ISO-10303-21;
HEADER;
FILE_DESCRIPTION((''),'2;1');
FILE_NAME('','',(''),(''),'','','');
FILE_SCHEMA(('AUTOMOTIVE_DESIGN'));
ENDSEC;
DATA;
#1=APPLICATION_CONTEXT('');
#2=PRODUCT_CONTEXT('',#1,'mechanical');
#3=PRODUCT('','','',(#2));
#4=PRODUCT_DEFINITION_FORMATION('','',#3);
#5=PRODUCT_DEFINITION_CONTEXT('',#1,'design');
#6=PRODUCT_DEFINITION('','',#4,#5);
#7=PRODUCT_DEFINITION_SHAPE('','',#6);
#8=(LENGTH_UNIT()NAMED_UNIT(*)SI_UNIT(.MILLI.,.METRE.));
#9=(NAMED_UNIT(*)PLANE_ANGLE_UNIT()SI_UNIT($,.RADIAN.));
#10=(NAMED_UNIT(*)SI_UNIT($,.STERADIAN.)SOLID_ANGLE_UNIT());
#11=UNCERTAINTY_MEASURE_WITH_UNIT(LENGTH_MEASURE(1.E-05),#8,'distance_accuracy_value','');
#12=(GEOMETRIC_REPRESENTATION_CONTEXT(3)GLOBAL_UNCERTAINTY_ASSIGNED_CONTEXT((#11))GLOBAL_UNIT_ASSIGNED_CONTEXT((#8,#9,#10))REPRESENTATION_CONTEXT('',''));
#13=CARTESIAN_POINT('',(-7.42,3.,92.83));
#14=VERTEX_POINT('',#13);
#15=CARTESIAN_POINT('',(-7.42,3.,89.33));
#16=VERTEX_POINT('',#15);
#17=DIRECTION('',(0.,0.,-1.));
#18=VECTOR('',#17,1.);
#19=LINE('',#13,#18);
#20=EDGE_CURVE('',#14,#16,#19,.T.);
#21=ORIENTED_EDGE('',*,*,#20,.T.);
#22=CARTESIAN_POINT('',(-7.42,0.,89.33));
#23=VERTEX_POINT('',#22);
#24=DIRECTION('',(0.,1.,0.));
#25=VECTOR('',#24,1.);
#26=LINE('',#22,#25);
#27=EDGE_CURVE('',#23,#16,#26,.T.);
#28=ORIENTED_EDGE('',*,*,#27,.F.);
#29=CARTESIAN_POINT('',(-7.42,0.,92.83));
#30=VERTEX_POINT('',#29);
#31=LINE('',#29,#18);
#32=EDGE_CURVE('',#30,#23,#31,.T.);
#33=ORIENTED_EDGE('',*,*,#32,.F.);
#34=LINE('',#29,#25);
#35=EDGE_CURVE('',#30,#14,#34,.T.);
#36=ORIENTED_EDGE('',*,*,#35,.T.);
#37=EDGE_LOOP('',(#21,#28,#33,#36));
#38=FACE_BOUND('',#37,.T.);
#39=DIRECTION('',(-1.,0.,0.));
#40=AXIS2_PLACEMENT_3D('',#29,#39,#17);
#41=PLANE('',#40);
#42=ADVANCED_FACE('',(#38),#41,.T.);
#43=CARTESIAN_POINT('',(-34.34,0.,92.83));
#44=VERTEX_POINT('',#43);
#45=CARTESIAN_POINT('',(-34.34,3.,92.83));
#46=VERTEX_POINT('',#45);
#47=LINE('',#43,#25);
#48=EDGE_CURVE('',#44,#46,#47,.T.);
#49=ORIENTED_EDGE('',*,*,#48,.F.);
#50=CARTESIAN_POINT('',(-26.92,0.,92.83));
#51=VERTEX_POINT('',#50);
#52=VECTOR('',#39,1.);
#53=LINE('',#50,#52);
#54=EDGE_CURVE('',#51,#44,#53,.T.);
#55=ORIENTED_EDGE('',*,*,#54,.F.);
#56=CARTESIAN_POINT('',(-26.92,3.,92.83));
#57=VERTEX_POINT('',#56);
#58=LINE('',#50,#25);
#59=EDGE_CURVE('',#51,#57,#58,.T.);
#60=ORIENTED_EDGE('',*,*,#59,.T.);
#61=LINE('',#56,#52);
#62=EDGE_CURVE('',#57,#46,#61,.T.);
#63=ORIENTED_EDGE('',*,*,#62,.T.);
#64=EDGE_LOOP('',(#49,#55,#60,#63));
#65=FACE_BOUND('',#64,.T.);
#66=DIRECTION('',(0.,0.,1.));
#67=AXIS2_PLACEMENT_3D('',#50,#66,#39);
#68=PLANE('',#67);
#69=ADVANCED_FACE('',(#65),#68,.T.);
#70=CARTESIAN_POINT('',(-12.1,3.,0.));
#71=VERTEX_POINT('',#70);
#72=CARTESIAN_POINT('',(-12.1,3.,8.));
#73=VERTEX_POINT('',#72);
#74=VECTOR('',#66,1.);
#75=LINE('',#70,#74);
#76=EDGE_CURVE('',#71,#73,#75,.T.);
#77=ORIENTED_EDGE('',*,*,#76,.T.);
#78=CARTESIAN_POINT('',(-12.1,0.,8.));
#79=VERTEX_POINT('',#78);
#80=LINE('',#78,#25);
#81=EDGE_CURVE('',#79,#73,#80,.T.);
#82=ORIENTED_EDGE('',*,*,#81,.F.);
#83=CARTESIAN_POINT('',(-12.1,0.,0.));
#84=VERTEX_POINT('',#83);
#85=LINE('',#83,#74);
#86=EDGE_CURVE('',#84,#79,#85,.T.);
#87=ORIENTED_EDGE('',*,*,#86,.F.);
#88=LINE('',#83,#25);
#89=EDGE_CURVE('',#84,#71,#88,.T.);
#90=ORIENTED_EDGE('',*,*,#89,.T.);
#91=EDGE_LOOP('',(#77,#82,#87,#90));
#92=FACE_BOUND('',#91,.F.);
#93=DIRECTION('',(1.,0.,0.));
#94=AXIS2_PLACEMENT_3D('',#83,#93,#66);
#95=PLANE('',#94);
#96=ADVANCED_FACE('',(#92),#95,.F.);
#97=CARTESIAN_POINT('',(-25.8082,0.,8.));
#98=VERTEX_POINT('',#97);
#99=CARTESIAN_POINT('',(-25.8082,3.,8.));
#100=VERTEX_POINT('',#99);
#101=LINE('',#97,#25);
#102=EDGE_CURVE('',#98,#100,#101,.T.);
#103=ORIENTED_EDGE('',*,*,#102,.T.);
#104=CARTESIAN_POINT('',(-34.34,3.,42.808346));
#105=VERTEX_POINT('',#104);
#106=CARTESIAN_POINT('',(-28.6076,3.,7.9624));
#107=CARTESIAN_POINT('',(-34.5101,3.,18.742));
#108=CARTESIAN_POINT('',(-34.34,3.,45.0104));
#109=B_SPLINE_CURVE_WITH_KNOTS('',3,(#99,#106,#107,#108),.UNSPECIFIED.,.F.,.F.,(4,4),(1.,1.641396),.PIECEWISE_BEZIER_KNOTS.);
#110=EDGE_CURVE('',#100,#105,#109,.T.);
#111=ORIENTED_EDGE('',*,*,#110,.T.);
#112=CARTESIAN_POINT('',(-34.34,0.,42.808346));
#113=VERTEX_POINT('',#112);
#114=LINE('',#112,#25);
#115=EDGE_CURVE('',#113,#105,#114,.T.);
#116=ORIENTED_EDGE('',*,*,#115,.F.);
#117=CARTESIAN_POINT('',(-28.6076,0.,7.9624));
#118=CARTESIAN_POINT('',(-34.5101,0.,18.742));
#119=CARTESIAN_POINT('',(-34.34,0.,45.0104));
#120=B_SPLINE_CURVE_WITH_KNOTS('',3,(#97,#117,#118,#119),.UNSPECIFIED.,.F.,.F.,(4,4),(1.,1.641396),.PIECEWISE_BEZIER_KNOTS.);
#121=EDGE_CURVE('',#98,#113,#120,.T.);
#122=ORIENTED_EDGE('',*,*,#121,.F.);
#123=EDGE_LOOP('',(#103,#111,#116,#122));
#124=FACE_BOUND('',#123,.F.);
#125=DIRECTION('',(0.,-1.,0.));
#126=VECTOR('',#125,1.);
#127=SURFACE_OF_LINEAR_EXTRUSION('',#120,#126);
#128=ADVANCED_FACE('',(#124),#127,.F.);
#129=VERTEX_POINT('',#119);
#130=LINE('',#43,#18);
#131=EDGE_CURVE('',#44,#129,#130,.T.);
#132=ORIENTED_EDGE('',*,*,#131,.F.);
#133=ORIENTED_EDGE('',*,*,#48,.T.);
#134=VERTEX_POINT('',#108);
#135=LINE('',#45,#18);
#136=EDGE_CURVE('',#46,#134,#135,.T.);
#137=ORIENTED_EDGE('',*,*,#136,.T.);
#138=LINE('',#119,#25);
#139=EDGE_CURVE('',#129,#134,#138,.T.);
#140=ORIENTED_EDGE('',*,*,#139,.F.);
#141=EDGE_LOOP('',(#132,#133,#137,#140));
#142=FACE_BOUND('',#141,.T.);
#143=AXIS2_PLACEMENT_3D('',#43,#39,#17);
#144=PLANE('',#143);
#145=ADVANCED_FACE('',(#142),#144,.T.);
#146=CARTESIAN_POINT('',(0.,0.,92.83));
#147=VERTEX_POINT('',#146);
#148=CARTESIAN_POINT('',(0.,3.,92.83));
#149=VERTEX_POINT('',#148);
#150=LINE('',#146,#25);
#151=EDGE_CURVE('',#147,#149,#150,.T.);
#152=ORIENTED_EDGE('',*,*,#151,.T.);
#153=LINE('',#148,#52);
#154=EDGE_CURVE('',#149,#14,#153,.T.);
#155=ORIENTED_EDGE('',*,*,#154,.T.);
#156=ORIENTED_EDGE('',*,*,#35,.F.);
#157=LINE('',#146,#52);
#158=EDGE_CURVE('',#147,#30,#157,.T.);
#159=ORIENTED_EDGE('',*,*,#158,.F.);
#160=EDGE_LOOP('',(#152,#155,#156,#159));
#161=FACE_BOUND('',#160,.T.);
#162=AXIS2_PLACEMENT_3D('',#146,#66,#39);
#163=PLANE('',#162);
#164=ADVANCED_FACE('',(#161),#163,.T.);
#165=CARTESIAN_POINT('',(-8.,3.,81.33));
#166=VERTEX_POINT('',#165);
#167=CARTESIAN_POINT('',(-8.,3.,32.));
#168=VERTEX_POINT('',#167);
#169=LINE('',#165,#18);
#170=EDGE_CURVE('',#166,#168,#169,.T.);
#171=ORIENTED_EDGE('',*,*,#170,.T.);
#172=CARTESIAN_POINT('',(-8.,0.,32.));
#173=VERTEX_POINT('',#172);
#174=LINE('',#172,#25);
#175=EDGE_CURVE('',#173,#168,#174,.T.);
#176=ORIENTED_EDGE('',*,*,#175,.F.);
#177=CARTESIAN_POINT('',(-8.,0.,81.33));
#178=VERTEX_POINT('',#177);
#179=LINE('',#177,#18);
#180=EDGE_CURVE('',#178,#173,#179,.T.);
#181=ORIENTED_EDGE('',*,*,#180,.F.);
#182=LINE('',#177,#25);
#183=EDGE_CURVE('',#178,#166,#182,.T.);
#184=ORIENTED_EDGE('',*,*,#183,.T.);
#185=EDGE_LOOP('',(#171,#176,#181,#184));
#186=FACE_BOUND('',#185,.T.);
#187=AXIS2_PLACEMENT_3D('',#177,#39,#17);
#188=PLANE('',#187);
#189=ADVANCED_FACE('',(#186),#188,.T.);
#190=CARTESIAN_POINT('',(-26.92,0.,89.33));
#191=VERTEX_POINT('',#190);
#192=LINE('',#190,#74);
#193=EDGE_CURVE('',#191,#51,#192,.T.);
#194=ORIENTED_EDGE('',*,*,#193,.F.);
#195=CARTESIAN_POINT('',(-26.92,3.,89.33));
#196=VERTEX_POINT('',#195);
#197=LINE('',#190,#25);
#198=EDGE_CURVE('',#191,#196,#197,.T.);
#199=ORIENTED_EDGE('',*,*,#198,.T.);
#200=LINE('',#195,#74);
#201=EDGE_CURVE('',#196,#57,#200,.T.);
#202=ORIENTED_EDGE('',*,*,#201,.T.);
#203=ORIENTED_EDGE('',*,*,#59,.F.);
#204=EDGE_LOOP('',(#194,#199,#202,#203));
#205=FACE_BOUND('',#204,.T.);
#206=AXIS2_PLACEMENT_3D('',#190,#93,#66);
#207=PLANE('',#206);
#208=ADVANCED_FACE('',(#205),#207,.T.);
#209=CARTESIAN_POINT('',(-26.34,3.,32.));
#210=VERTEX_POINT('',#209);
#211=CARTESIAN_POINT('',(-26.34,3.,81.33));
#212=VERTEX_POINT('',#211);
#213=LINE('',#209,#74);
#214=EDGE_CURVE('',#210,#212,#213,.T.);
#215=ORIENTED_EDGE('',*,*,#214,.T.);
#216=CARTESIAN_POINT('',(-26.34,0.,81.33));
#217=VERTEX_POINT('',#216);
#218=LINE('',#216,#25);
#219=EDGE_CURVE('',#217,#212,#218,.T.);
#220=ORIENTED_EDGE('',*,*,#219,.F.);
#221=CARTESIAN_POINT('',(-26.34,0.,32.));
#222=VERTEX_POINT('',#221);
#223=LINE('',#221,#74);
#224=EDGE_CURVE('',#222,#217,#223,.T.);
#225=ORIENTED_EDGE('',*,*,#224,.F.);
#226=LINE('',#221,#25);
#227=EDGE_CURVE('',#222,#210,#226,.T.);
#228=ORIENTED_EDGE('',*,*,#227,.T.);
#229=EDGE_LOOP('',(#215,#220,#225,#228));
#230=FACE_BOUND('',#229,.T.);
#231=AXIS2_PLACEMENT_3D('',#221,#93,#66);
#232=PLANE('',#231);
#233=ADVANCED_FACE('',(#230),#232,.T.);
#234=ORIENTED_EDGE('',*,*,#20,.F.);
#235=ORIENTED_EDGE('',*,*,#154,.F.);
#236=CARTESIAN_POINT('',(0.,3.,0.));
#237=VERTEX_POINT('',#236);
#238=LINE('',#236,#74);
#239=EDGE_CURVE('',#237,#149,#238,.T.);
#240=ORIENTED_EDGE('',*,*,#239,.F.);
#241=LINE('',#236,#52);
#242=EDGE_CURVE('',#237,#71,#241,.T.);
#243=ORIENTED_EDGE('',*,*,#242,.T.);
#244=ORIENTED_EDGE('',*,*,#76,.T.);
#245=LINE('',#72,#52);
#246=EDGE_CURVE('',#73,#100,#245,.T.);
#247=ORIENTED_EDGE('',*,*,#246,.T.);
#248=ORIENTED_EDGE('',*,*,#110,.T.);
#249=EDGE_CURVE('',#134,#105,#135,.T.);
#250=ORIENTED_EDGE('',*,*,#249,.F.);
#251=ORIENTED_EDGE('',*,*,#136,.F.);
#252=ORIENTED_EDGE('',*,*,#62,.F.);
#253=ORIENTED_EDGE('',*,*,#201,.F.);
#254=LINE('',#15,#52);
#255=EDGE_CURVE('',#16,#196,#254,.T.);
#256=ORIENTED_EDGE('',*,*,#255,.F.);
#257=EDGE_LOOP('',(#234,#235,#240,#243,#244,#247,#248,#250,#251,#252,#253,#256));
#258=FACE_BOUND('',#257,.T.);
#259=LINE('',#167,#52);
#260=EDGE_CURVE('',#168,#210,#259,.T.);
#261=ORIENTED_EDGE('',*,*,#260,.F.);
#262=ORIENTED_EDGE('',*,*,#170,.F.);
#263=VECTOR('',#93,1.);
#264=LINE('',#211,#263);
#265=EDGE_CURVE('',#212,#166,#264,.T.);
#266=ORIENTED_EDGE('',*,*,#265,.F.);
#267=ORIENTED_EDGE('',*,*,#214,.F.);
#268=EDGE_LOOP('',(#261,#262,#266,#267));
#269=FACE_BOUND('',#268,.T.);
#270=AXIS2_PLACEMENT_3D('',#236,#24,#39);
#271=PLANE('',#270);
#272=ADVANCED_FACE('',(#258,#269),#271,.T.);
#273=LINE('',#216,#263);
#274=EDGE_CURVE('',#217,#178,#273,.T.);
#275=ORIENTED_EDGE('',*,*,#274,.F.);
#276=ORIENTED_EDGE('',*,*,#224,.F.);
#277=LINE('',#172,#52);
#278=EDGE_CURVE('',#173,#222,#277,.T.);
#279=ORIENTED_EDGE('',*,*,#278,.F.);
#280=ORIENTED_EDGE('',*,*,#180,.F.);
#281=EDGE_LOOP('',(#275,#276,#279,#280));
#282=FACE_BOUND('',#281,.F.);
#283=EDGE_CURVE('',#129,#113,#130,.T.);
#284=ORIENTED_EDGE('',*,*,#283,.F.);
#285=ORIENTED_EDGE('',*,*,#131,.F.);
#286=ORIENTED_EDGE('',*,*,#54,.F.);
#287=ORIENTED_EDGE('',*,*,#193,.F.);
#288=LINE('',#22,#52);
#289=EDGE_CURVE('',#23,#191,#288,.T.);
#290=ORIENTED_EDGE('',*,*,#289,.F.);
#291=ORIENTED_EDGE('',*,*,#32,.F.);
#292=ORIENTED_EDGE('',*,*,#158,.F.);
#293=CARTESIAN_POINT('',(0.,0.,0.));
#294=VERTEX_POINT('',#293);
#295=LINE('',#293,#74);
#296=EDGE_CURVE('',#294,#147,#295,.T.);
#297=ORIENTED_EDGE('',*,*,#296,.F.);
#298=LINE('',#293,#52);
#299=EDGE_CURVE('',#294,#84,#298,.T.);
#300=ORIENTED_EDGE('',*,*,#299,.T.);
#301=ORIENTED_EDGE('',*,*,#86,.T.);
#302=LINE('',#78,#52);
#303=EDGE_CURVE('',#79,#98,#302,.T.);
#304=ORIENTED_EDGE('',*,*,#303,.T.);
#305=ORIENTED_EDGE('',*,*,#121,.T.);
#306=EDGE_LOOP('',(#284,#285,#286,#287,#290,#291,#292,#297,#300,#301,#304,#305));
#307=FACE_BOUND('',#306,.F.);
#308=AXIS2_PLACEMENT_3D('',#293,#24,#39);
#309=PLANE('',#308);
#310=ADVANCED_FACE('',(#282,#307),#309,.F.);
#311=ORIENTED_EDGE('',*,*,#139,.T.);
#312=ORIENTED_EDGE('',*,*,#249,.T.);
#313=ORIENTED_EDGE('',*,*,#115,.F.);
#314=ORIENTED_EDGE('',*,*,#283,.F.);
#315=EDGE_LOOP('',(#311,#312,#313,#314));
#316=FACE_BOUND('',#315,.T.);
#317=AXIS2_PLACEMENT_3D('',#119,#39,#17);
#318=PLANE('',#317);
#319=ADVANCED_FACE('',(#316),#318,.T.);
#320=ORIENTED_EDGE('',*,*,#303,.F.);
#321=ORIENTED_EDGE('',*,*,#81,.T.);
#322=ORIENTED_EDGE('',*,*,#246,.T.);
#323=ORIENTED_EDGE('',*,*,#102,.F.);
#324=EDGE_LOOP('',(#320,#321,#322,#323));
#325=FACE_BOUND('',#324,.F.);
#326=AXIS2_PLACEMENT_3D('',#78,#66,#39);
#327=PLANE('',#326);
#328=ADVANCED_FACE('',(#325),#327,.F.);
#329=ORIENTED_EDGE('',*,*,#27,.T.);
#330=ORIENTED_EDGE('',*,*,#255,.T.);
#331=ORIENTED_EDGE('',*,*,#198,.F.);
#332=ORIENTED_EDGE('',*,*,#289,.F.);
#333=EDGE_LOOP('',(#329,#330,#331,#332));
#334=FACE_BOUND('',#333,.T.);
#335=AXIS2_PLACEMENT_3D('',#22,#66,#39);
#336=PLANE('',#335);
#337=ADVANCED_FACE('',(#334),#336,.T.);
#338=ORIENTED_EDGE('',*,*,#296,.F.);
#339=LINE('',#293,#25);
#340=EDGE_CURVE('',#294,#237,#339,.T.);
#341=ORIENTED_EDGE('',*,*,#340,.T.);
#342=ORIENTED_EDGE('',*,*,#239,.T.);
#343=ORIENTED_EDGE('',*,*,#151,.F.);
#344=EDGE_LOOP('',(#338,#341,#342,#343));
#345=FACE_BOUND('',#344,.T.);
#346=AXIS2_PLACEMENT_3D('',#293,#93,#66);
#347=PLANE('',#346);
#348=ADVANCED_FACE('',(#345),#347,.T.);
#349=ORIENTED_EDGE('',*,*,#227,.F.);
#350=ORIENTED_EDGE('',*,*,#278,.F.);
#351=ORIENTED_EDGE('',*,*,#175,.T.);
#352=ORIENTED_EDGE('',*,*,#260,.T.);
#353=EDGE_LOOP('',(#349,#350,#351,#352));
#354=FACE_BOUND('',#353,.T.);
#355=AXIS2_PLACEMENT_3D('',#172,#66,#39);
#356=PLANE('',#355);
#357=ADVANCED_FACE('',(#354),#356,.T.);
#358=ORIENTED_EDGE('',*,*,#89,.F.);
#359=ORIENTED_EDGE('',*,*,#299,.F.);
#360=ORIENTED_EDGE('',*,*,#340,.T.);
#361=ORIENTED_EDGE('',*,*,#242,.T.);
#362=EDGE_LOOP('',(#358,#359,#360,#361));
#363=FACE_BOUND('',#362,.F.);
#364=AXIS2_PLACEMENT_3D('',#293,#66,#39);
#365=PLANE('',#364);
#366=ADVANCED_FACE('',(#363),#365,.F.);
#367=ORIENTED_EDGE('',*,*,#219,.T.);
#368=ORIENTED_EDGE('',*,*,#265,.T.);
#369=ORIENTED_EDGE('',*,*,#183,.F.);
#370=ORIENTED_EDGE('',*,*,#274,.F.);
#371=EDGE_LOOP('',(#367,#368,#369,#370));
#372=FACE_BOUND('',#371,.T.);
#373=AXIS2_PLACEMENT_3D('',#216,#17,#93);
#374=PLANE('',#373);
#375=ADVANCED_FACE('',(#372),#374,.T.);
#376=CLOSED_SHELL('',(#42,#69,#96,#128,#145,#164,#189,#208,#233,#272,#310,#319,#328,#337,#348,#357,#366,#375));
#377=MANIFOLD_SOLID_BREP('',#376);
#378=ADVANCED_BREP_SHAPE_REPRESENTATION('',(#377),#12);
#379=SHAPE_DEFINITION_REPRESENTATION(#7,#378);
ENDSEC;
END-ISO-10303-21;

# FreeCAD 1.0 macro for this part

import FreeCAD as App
import Part
import Sketcher
Q = App.Units.Quantity


def add_polygon(sketch, points):
    """Adds a closed chain of lines whose ends are joined by coincident constraints."""
    first, n = sketch.GeometryCount, len(points)
    for a, b in zip(points, points[1:] + points[:1]):
        sketch.addGeometry(Part.LineSegment(App.Vector(*a, 0), App.Vector(*b, 0)), False)
    for i in range(n):
        sketch.addConstraint(Sketcher.Constraint("Coincident", first + i, 2, first + (i + 1) % n, 1))

doc = App.newDocument("Part")
params = doc.addObject("Spreadsheet::Sheet", "Params")
for row, (alias, value) in enumerate([
    ("sketch1_width", "12.1 mm"),
    ("sketch1_width2", "19.5 mm"),
    ("sketch1_height", "3.5 mm"),
    ("sketch1_height2", "92.83 mm"),
    ("pad1_length", "3 mm"),
], start=1):
    params.set(f"A{row}", alias)
    params.set(f"B{row}", "=" + value)
    params.setAlias(f"B{row}", alias)

body = doc.addObject("PartDesign::Body", "Body")

# Sketch on XZ plane
sketch1 = doc.addObject("Sketcher::SketchObject", "Sketch")
body.addObject(sketch1)
sketch1.AttachmentSupport = (doc.XZ_Plane, [""])
sketch1.MapMode = "FlatFace"
sketch1.addGeometry(Part.LineSegment(App.Vector(0, 92.83, 0), App.Vector(0, 0, 0)), False)  # 0
sketch1.addGeometry(Part.LineSegment(App.Vector(0, 0, 0), App.Vector(-12.1, 0, 0)), False)  # 1
sketch1.addGeometry(Part.LineSegment(App.Vector(-12.1, 0, 0), App.Vector(-12.1, 8, 0)), False)  # 2
sketch1.addGeometry(Part.LineSegment(App.Vector(-12.1, 8, 0), App.Vector(-25.8082, 8, 0)), False)  # 3
sketch1.addGeometry(Part.BSplineCurve([App.Vector(-25.8082, 8, 0), App.Vector(-28.528047, 7.963469, 0), App.Vector(-34.177134, 18.13807, 0), App.Vector(-34.34, 42.808346, 0)], [4, 4], [1, 1.623168928], False, 3, [1, 1, 1, 1], False), False)  # 4
sketch1.addGeometry(Part.LineSegment(App.Vector(-34.34, 42.808346, 0), App.Vector(-34.34, 92.83, 0)), False)  # 5
sketch1.addGeometry(Part.LineSegment(App.Vector(-34.34, 92.83, 0), App.Vector(-26.92, 92.83, 0)), False)  # 6
sketch1.addGeometry(Part.LineSegment(App.Vector(-26.92, 92.83, 0), App.Vector(-26.92, 89.33, 0)), False)  # 7
sketch1.addGeometry(Part.LineSegment(App.Vector(-26.92, 89.33, 0), App.Vector(-7.42, 89.33, 0)), False)  # 8
sketch1.addGeometry(Part.LineSegment(App.Vector(-7.42, 89.33, 0), App.Vector(-7.42, 92.83, 0)), False)  # 9
sketch1.addGeometry(Part.LineSegment(App.Vector(-7.42, 92.83, 0), App.Vector(0, 92.83, 0)), False)  # 10
add_polygon(sketch1, [(-8, 81.33), (-26.34, 81.33), (-26.34, 32), (-8, 32)])  # lines 11-14
sketch1.addConstraint([
    Sketcher.Constraint("Block", 4),
    Sketcher.Constraint("Coincident", 0, 2, 1, 1),
    Sketcher.Constraint("Coincident", 1, 2, 2, 1),
    Sketcher.Constraint("Coincident", 2, 2, 3, 1),
    Sketcher.Constraint("Coincident", 3, 2, 4, 1),
    Sketcher.Constraint("Coincident", 4, 2, 5, 1),
    Sketcher.Constraint("Coincident", 5, 2, 6, 1),
    Sketcher.Constraint("Coincident", 6, 2, 7, 1),
    Sketcher.Constraint("Coincident", 7, 2, 8, 1),
    Sketcher.Constraint("Coincident", 8, 2, 9, 1),
    Sketcher.Constraint("Coincident", 9, 2, 10, 1),
    Sketcher.Constraint("Coincident", 10, 2, 0, 1),
    Sketcher.Constraint("Vertical", 0),
    Sketcher.Constraint("Horizontal", 1),
    Sketcher.Constraint("Vertical", 2),
    Sketcher.Constraint("Horizontal", 3),
    Sketcher.Constraint("Vertical", 5),
    Sketcher.Constraint("Horizontal", 6),
    Sketcher.Constraint("Vertical", 7),
    Sketcher.Constraint("Horizontal", 8),
    Sketcher.Constraint("Vertical", 9),
    Sketcher.Constraint("Horizontal", 10),
    Sketcher.Constraint("Horizontal", 11),
    Sketcher.Constraint("Vertical", 12),
    Sketcher.Constraint("Horizontal", 13),
    Sketcher.Constraint("Vertical", 14),
    Sketcher.Constraint("Coincident", 0, 2, -1, 1),
    Sketcher.Constraint("Horizontal", 6, 2, 9, 2),
    Sketcher.Constraint("Equal", 6, 10),
    Sketcher.Constraint("DistanceX", 1, 2, 1, 1, Q("12.1 mm")),
    Sketcher.Constraint("DistanceX", 8, 1, 8, 2, Q("19.5 mm")),
    Sketcher.Constraint("DistanceY", 7, 2, 7, 1, Q("3.5 mm")),
    Sketcher.Constraint("DistanceY", -1, 1, 12, 2, Q("32 mm")),
    Sketcher.Constraint("DistanceX", 13, 2, -1, 1, Q("8 mm")),
    Sketcher.Constraint("DistanceY", 11, 2, 7, 2, Q("8 mm")),
    Sketcher.Constraint("DistanceX", 5, 2, 11, 2, Q("8 mm")),
    Sketcher.Constraint("DistanceY", 0, 2, 0, 1, Q("92.83 mm")),
])
sketch1.setExpression("Constraints[33]", "Params.sketch1_width")
sketch1.setExpression("Constraints[34]", "Params.sketch1_width2")
sketch1.setExpression("Constraints[35]", "Params.sketch1_height")
sketch1.setExpression("Constraints[40]", "Params.sketch1_height2")
pad1 = doc.addObject("PartDesign::Pad", "Pad")
body.addObject(pad1)
pad1.Profile = sketch1
pad1.setExpression("Length", "Params.pad1_length")
pad1.Reversed = True

doc.recompute()
